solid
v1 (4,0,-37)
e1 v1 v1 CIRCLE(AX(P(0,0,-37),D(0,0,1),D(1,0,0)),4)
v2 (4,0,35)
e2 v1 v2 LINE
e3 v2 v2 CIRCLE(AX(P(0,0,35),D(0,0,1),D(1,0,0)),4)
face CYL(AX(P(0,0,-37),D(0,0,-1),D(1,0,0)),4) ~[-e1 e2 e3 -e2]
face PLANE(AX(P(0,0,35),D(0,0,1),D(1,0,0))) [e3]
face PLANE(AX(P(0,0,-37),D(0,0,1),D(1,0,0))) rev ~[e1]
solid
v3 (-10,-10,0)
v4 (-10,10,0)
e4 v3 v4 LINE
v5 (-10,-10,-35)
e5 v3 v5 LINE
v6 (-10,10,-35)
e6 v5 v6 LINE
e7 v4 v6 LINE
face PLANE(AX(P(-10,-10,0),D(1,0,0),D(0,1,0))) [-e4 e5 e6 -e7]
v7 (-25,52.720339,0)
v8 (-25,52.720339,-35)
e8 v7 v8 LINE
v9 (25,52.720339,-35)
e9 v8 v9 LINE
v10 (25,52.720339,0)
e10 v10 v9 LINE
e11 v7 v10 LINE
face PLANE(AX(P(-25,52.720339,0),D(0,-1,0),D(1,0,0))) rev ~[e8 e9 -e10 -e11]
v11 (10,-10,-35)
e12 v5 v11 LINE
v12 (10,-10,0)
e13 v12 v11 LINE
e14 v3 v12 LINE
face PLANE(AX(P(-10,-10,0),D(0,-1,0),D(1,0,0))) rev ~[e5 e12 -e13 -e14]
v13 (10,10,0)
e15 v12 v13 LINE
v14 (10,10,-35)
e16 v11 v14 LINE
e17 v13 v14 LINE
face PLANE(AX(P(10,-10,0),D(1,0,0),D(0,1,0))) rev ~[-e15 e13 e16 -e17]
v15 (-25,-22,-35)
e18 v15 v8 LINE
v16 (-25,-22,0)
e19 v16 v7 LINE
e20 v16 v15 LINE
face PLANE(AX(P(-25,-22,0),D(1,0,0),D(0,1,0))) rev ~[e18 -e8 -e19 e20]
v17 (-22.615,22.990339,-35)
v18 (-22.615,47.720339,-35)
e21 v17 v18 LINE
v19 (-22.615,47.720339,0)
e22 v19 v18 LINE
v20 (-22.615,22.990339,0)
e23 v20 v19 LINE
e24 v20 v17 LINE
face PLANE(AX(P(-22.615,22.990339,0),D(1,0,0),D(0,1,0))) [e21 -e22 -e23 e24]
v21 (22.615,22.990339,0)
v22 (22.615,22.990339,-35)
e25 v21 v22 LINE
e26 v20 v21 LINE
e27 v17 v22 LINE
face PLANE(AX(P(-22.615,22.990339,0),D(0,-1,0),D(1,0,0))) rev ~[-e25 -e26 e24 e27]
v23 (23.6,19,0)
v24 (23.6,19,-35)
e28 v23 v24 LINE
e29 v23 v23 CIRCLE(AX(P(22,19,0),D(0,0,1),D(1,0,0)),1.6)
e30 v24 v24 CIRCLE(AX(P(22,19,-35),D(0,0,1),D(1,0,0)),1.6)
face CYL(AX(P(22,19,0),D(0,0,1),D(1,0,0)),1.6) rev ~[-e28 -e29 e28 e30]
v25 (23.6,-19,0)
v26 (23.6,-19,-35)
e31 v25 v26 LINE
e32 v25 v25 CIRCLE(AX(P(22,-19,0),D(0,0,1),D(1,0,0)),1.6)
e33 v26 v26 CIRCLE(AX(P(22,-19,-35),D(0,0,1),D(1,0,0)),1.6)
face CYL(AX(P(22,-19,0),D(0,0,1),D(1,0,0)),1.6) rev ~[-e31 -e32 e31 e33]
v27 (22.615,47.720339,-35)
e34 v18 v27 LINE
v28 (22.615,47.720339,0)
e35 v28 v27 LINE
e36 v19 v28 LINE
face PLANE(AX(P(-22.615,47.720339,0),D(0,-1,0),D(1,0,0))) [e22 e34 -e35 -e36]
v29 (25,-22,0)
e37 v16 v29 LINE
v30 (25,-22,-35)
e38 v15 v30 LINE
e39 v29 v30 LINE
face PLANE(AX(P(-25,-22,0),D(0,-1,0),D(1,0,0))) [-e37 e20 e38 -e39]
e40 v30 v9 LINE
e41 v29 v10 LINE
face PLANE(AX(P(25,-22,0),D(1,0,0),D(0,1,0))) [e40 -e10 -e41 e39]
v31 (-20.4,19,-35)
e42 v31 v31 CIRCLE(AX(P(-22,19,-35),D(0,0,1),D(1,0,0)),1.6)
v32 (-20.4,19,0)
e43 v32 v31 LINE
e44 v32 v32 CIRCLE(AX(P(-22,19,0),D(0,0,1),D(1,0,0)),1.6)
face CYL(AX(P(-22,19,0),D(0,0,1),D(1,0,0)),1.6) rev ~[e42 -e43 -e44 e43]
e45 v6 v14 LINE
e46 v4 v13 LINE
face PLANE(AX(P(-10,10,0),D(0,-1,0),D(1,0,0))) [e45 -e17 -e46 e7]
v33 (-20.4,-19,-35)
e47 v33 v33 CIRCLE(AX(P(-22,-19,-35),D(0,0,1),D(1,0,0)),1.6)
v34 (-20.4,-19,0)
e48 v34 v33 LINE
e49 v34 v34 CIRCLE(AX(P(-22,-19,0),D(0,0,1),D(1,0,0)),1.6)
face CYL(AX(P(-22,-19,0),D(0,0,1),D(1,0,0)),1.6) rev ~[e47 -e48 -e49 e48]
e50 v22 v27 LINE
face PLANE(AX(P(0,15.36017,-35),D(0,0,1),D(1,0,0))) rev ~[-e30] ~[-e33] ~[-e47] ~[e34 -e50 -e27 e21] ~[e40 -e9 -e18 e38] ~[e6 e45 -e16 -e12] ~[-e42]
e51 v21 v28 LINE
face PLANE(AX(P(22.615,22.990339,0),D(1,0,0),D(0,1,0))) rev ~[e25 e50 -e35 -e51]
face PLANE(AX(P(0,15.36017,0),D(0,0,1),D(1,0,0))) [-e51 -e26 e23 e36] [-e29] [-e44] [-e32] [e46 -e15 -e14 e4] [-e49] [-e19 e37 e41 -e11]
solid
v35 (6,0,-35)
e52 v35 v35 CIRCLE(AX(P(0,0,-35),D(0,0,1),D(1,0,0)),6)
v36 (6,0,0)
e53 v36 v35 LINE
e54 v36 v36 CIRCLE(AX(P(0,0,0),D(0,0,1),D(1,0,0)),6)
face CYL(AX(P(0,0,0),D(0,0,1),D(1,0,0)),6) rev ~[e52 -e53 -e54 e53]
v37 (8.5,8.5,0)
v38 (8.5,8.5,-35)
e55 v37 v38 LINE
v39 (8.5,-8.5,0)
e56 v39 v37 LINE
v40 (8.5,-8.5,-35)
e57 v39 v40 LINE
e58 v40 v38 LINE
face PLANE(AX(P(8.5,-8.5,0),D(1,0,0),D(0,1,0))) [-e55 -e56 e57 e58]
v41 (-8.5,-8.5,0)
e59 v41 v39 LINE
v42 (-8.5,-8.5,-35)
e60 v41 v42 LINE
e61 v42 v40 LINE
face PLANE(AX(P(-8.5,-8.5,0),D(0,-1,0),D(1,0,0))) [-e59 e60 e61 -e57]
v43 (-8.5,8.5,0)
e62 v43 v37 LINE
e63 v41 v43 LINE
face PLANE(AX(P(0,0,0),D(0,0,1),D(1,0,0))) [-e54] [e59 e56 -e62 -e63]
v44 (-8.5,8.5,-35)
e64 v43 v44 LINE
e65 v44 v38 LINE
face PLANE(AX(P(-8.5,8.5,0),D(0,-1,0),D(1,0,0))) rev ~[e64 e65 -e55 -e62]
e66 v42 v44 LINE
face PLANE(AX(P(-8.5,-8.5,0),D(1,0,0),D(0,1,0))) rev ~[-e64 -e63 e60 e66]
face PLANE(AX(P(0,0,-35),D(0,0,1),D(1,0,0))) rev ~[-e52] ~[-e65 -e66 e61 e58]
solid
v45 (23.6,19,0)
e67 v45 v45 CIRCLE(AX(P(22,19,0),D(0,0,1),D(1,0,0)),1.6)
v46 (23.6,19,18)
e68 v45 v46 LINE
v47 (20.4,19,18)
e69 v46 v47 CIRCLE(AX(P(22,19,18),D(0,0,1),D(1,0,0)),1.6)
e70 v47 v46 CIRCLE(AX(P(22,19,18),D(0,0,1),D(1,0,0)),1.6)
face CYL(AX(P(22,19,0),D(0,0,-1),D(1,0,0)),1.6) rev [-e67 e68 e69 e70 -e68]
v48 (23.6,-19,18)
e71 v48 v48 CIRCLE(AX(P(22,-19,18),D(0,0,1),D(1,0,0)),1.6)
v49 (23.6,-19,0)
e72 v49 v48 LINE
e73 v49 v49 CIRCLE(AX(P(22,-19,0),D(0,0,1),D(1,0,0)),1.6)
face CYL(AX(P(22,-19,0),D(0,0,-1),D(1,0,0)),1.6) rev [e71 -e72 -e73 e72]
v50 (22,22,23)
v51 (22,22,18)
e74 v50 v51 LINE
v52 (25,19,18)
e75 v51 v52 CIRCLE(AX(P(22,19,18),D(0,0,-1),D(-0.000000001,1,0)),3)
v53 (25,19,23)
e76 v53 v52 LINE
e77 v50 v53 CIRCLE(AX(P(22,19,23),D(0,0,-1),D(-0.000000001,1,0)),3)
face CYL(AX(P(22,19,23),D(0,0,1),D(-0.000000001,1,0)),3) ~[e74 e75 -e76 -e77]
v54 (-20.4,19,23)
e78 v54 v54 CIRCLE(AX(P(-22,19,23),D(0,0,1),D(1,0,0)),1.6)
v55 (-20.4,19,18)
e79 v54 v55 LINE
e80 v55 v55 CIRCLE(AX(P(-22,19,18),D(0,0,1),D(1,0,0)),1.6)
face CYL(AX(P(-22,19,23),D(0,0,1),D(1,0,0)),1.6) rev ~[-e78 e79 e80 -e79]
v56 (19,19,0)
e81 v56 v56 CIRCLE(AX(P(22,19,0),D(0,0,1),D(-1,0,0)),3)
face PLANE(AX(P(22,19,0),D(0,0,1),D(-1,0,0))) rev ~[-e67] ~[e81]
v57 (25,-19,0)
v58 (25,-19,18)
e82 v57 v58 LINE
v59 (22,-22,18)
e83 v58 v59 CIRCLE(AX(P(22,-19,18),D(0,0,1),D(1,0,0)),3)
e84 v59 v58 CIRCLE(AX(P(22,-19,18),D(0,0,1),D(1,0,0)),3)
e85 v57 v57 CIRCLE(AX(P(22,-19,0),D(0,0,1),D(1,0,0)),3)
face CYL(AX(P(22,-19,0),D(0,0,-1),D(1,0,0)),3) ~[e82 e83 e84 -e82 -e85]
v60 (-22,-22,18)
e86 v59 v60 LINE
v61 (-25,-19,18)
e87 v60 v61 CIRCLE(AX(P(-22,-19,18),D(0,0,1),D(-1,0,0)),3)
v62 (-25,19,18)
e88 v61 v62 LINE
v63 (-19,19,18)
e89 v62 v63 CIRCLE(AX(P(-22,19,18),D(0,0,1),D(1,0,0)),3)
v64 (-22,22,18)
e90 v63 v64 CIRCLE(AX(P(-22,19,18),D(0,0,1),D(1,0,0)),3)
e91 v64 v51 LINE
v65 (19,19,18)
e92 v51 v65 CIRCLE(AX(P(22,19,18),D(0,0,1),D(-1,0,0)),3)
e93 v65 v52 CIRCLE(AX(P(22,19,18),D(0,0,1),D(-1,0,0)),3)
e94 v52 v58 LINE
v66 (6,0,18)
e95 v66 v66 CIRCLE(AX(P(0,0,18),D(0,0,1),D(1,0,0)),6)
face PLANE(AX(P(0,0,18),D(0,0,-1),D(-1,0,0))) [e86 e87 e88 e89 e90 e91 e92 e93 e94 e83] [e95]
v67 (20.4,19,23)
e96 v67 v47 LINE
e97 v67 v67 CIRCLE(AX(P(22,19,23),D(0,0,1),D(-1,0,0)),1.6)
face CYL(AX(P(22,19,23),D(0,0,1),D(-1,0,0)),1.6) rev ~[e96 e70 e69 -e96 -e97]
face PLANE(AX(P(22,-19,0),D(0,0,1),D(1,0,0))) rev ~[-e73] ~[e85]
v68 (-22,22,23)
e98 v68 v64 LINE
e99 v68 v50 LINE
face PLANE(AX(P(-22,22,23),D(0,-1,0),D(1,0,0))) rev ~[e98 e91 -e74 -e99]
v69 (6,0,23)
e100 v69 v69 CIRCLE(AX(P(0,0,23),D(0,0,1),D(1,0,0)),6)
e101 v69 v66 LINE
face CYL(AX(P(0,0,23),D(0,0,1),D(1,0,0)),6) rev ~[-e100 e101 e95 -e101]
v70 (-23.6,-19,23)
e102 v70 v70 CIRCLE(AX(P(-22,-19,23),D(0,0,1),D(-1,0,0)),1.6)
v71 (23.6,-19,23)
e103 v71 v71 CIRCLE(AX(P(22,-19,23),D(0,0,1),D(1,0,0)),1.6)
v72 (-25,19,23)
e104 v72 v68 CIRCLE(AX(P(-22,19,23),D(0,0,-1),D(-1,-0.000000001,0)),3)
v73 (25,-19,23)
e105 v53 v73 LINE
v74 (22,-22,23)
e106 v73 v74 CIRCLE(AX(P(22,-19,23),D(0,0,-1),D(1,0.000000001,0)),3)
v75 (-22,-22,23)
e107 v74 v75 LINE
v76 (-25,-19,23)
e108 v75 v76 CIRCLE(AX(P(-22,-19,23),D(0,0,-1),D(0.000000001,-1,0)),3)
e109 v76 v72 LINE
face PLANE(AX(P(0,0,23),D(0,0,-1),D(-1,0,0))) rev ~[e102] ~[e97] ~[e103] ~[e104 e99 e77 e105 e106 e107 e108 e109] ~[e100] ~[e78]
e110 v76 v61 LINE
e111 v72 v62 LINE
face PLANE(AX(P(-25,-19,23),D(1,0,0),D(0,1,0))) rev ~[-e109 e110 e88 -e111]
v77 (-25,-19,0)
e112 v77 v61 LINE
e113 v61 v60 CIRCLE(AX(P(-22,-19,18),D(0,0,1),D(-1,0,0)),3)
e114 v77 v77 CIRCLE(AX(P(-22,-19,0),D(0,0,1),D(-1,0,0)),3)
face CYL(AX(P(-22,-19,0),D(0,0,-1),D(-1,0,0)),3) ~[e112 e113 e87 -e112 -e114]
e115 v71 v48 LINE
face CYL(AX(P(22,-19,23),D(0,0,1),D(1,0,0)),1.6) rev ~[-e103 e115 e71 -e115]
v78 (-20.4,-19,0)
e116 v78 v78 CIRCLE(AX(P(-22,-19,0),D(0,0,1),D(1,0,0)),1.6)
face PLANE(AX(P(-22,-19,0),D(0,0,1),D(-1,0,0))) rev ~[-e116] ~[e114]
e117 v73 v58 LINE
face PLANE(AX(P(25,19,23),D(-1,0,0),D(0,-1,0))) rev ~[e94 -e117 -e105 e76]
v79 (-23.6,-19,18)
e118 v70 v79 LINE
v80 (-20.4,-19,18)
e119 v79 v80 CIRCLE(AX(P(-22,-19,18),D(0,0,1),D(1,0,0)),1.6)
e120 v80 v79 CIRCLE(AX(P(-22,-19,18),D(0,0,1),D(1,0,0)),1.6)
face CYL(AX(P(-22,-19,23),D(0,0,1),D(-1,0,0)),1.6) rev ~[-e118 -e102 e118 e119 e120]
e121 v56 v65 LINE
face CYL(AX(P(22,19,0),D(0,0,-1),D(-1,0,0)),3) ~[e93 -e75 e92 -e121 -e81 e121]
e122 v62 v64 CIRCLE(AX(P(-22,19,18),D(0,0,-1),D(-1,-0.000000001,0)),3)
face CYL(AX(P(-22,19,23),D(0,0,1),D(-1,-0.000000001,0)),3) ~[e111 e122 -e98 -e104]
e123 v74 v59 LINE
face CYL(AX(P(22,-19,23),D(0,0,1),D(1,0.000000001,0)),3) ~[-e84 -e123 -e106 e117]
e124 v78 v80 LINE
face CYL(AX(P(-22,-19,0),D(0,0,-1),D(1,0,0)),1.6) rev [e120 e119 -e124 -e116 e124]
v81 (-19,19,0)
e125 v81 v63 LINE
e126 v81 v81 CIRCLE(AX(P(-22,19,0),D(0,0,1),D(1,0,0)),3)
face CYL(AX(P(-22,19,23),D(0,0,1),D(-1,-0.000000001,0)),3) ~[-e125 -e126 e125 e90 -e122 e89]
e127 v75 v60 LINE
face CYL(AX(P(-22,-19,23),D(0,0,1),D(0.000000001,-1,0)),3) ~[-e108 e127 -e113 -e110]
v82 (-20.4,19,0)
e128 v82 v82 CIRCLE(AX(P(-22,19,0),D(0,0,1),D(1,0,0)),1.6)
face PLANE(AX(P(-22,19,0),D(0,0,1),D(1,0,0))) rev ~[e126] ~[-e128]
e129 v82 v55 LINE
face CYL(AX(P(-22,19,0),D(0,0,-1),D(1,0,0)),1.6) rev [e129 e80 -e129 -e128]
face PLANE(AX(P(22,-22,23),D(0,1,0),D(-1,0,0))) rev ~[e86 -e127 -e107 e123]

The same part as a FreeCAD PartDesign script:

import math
import FreeCAD as App
import Part
import Sketcher

V = App.Vector
Q = App.Units.Quantity


def add_polygon(sketch, points):
    """Adds a closed chain of lines whose ends are joined by coincident constraints."""
    first, n = sketch.GeometryCount, len(points)
    for a, b in zip(points, points[1:] + points[:1]):
        sketch.addGeometry(Part.LineSegment(App.Vector(*a, 0), App.Vector(*b, 0)), False)
    for i in range(n):
        sketch.addConstraint(Sketcher.Constraint("Coincident", first + i, 2, first + (i + 1) % n, 1))

doc = App.newDocument("Part")
body = doc.addObject("PartDesign::Body", "Body")

sketch1 = body.newObject("Sketcher::SketchObject", "Sketch")
sketch1.AttachmentSupport = (doc.getObject("XY_Plane"), [""])
sketch1.MapMode = "FlatFace"
add_polygon(sketch1, [(-25, 52.7), (-25, -22), (25, -22), (25, 52.7)])
sketch1.addGeometry(Part.Circle(V(-22, -19, 0), V(0, 0, 1), 1.6), False)
sketch1.addGeometry(Part.Circle(V(22, -19, 0), V(0, 0, 1), 1.6), False)
add_polygon(sketch1, [(10, -10), (-10, -10), (-10, 10), (10, 10)])
sketch1.addGeometry(Part.Circle(V(-22, 19, 0), V(0, 0, 1), 1.6), False)
sketch1.addGeometry(Part.Circle(V(22, 19, 0), V(0, 0, 1), 1.6), False)
add_polygon(sketch1, [(22.6, 23), (-22.6, 23), (-22.6, 47.7), (22.6, 47.7)])
sketch1.addConstraint(Sketcher.Constraint("Vertical", 0))
sketch1.addConstraint(Sketcher.Constraint("Horizontal", 1))
sketch1.addConstraint(Sketcher.Constraint("Vertical", 2))
sketch1.addConstraint(Sketcher.Constraint("Horizontal", 3))
sketch1.addConstraint(Sketcher.Constraint("Horizontal", 6))
sketch1.addConstraint(Sketcher.Constraint("Vertical", 7))
sketch1.addConstraint(Sketcher.Constraint("Horizontal", 8))
sketch1.addConstraint(Sketcher.Constraint("Vertical", 9))
sketch1.addConstraint(Sketcher.Constraint("Horizontal", 12))
sketch1.addConstraint(Sketcher.Constraint("Vertical", 13))
sketch1.addConstraint(Sketcher.Constraint("Horizontal", 14))
sketch1.addConstraint(Sketcher.Constraint("Vertical", 15))
sketch1.addConstraint(Sketcher.Constraint("Equal", 4, 5))
sketch1.addConstraint(Sketcher.Constraint("Equal", 5, 10))
sketch1.addConstraint(Sketcher.Constraint("Equal", 10, 11))
sketch1.addConstraint(Sketcher.Constraint("Symmetric", 5, 3, 10, 3, -1, 1))
sketch1.addConstraint(Sketcher.Constraint("Symmetric", 4, 3, 11, 3, -1, 1))
sketch1.addConstraint(Sketcher.Constraint("Symmetric", 6, 2, 8, 2, -1, 1))
sketch1.addConstraint(Sketcher.Constraint("Symmetric", 4, 3, 5, 3, -2))
sketch1.addConstraint(Sketcher.Constraint("Equal", 8, 7))
sketch1.addConstraint(Sketcher.Constraint("Diameter", 4, Q("3.2 mm")))
sketch1.addConstraint(Sketcher.Constraint("DistanceX", 1, 1, 1, 2, Q("50 mm")))
sketch1.addConstraint(Sketcher.Constraint("DistanceX", 6, 2, 6, 1, Q("20 mm")))
sketch1.addConstraint(Sketcher.Constraint("DistanceX", 4, 3, -1, 1, Q("22 mm")))
sketch1.addConstraint(Sketcher.Constraint("DistanceY", 4, 3, -1, 1, Q("19 mm")))
sketch1.addConstraint(Sketcher.Constraint("DistanceX", 0, 2, -1, 1, Q("25 mm")))
sketch1.addConstraint(Sketcher.Constraint("DistanceY", 0, 2, -1, 1, Q("22 mm")))
sketch1.addConstraint(Sketcher.Constraint("DistanceY", 13, 2, 3, 2, Q("5 mm")))
sketch1.addConstraint(Sketcher.Constraint("DistanceX", 12, 2, 12, 1, Q("45.23 mm")))
sketch1.addConstraint(Sketcher.Constraint("DistanceY", 13, 1, 13, 2, Q("24.73 mm")))
sketch1.addConstraint(Sketcher.Constraint("DistanceX", 12, 2, -1, 1, Q("22.615 mm")))
sketch1.addConstraint(Sketcher.Constraint("DistanceY", 0, 2, 0, 1, Q("74.720339 mm")))
pad1 = body.newObject("PartDesign::Pad", "Pad")
pad1.Profile = sketch1
pad1.Length = 35
pad1.Reversed = True
body2 = doc.addObject("PartDesign::Body", "Body001")

sketch2 = body2.newObject("Sketcher::SketchObject", "Sketch001")
sketch2.AttachmentSupport = (doc.getObject("XY_Plane001"), [""])
sketch2.MapMode = "FlatFace"
add_polygon(sketch2, [(-8, 8), (-8, -8), (8, -8), (8, 8)])
sketch2.addGeometry(Part.Circle(V(0, 0, 0), V(0, 0, 1), 6), False)
sketch2.addConstraint(Sketcher.Constraint("Vertical", 0))
sketch2.addConstraint(Sketcher.Constraint("Horizontal", 1))
sketch2.addConstraint(Sketcher.Constraint("Vertical", 2))
sketch2.addConstraint(Sketcher.Constraint("Horizontal", 3))
sketch2.addConstraint(Sketcher.Constraint("Coincident", 4, 3, -1, 1))
sketch2.addConstraint(Sketcher.Constraint("Symmetric", 0, 2, 2, 2, -1, 1))
sketch2.addConstraint(Sketcher.Constraint("Equal", 3, 0))
sketch2.addConstraint(Sketcher.Constraint("Diameter", 4, Q("12 mm")))
sketch2.addConstraint(Sketcher.Constraint("DistanceX", 1, 1, 1, 2, Q("17 mm")))
pad2 = body2.newObject("PartDesign::Pad", "Pad001")
pad2.Profile = sketch2
pad2.Length = 35
pad2.Reversed = True
body3 = doc.addObject("PartDesign::Body", "Body002")

sketch3 = body3.newObject("Sketcher::SketchObject", "Sketch002")
sketch3.AttachmentSupport = (doc.getObject("XY_Plane002"), [""])
sketch3.MapMode = "FlatFace"
sketch3.addGeometry(Part.Circle(V(0, 0, 0), V(0, 0, 1), 4), False)
sketch3.addConstraint(Sketcher.Constraint("Coincident", 0, 3, -1, 1))
sketch3.addConstraint(Sketcher.Constraint("Diameter", 0, Q("8 mm")))
pad3 = body3.newObject("PartDesign::Pad", "Pad002")
pad3.Profile = sketch3
pad3.Type = "TwoLengths"
pad3.Length = 35
pad3.Length2 = 37
body4 = doc.addObject("PartDesign::Body", "Body003")

sketch4 = body4.newObject("Sketcher::SketchObject", "Sketch003")
sketch4.AttachmentSupport = (doc.getObject("XY_Plane003"), [""])
sketch4.MapMode = "FlatFace"
sketch4.addGeometry(Part.Circle(V(-22, 19, 0), V(0, 0, 1), 3), False)
sketch4.addGeometry(Part.Circle(V(-22, 19, 0), V(0, 0, 1), 1.6), False)
sketch4.addConstraint(Sketcher.Constraint("Coincident", 1, 3, 0, 3))
sketch4.addConstraint(Sketcher.Constraint("Diameter", 0, Q("6 mm")))
sketch4.addConstraint(Sketcher.Constraint("Diameter", 1, Q("3.2 mm")))
sketch4.addConstraint(Sketcher.Constraint("DistanceX", 0, 3, -1, 1, Q("22 mm")))
sketch4.addConstraint(Sketcher.Constraint("DistanceY", -1, 1, 0, 3, Q("19 mm")))
pad4 = body4.newObject("PartDesign::Pad", "Pad003")
pad4.Profile = sketch4
pad4.Length = 18
body5 = doc.addObject("PartDesign::Body", "Body004")

sketch5 = body5.newObject("Sketcher::SketchObject", "Sketch004")
sketch5.AttachmentSupport = (doc.getObject("XY_Plane004"), [""])
sketch5.MapMode = "FlatFace"
sketch5.addGeometry(Part.Circle(V(-22, -19, 0), V(0, 0, 1), 3), False)
sketch5.addGeometry(Part.Circle(V(-22, -19, 0), V(0, 0, 1), 1.6), False)
sketch5.addConstraint(Sketcher.Constraint("Coincident", 1, 3, 0, 3))
sketch5.addConstraint(Sketcher.Constraint("Diameter", 0, Q("6 mm")))
sketch5.addConstraint(Sketcher.Constraint("Diameter", 1, Q("3.2 mm")))
sketch5.addConstraint(Sketcher.Constraint("DistanceX", 0, 3, -1, 1, Q("22 mm")))
sketch5.addConstraint(Sketcher.Constraint("DistanceY", 0, 3, -1, 1, Q("19 mm")))
pad5 = body5.newObject("PartDesign::Pad", "Pad004")
pad5.Profile = sketch5
pad5.Length = 18
body6 = doc.addObject("PartDesign::Body", "Body005")

sketch6 = body6.newObject("Sketcher::SketchObject", "Sketch005")
sketch6.AttachmentSupport = (doc.getObject("XY_Plane005"), [""])
sketch6.MapMode = "FlatFace"
sketch6.addGeometry(Part.Circle(V(22, -19, 0), V(0, 0, 1), 3), False)
sketch6.addGeometry(Part.Circle(V(22, -19, 0), V(0, 0, 1), 1.6), False)
sketch6.addConstraint(Sketcher.Constraint("Coincident", 1, 3, 0, 3))
sketch6.addConstraint(Sketcher.Constraint("Diameter", 0, Q("6 mm")))
sketch6.addConstraint(Sketcher.Constraint("Diameter", 1, Q("3.2 mm")))
sketch6.addConstraint(Sketcher.Constraint("DistanceX", -1, 1, 0, 3, Q("22 mm")))
sketch6.addConstraint(Sketcher.Constraint("DistanceY", 0, 3, -1, 1, Q("19 mm")))
pad6 = body6.newObject("PartDesign::Pad", "Pad005")
pad6.Profile = sketch6
pad6.Length = 18
body7 = doc.addObject("PartDesign::Body", "Body006")

sketch7 = body7.newObject("Sketcher::SketchObject", "Sketch006")
sketch7.AttachmentSupport = (doc.getObject("XY_Plane006"), [""])
sketch7.MapMode = "FlatFace"
sketch7.addGeometry(Part.Circle(V(22, 19, 0), V(0, 0, 1), 3), False)
sketch7.addGeometry(Part.Circle(V(22, 19, 0), V(0, 0, 1), 1.6), False)
sketch7.addConstraint(Sketcher.Constraint("Coincident", 1, 3, 0, 3))
sketch7.addConstraint(Sketcher.Constraint("Diameter", 0, Q("6 mm")))
sketch7.addConstraint(Sketcher.Constraint("Diameter", 1, Q("3.2 mm")))
sketch7.addConstraint(Sketcher.Constraint("DistanceX", -1, 1, 0, 3, Q("22 mm")))
sketch7.addConstraint(Sketcher.Constraint("DistanceY", -1, 1, 0, 3, Q("19 mm")))
pad7 = body7.newObject("PartDesign::Pad", "Pad006")
pad7.Profile = sketch7
pad7.Length = 18
body4.AllowCompound = True
doc.recompute()

boolean = body4.newObject("PartDesign::Boolean", "Boolean")
boolean.Type = "Fuse"
boolean.addObjects([body5])
doc.recompute()

boolean2 = body4.newObject("PartDesign::Boolean", "Boolean001")
boolean2.Type = "Fuse"
boolean2.addObjects([body6])
doc.recompute()

boolean3 = body4.newObject("PartDesign::Boolean", "Boolean002")
boolean3.Type = "Fuse"
boolean3.addObjects([body7])

sketch8 = body4.newObject("Sketcher::SketchObject", "Sketch007")
sketch8.AttachmentSupport = (doc.getObject("XY_Plane003"), [""])
sketch8.MapMode = "FlatFace"
sketch8.AttachmentOffset = App.Placement(V(0, 0, 23), App.Rotation())
sketch8.addGeometry(Part.LineSegment(V(22, 22, 0), V(-22, 22, 0)), False)
sketch8.addGeometry(Part.ArcOfCircle(Part.Circle(V(-22, 19, 0), V(0, 0, 1), 3), math.radians(90), math.radians(180)), False)
sketch8.addGeometry(Part.LineSegment(V(-25, 19, 0), V(-25, -19, 0)), False)
sketch8.addGeometry(Part.ArcOfCircle(Part.Circle(V(-22, -19, 0), V(0, 0, 1), 3), math.radians(180), math.radians(270)), False)
sketch8.addGeometry(Part.LineSegment(V(-22, -22, 0), V(22, -22, 0)), False)
sketch8.addGeometry(Part.ArcOfCircle(Part.Circle(V(22, -19, 0), V(0, 0, 1), 3), math.radians(-90), math.radians(0)), False)
sketch8.addGeometry(Part.LineSegment(V(25, -19, 0), V(25, 19, 0)), False)
sketch8.addGeometry(Part.ArcOfCircle(Part.Circle(V(22, 19, 0), V(0, 0, 1), 3), math.radians(0), math.radians(90)), False)
sketch8.addGeometry(Part.Circle(V(22, -19, 0), V(0, 0, 1), 1.6), False)
sketch8.addGeometry(Part.Circle(V(-22, -19, 0), V(0, 0, 1), 1.6), False)
sketch8.addGeometry(Part.Circle(V(22, 19, 0), V(0, 0, 1), 1.6), False)
sketch8.addGeometry(Part.Circle(V(0, 0, 0), V(0, 0, 1), 6), False)
sketch8.addGeometry(Part.Circle(V(-22, 19, 0), V(0, 0, 1), 1.6), False)
sketch8.addConstraint(Sketcher.Constraint("Tangent", 0, 2, 1, 1))
sketch8.addConstraint(Sketcher.Constraint("Tangent", 1, 2, 2, 1))
sketch8.addConstraint(Sketcher.Constraint("Tangent", 2, 2, 3, 1))
sketch8.addConstraint(Sketcher.Constraint("Tangent", 3, 2, 4, 1))
sketch8.addConstraint(Sketcher.Constraint("Tangent", 4, 2, 5, 1))
sketch8.addConstraint(Sketcher.Constraint("Tangent", 5, 2, 6, 1))
sketch8.addConstraint(Sketcher.Constraint("Tangent", 6, 2, 7, 1))
sketch8.addConstraint(Sketcher.Constraint("Tangent", 7, 2, 0, 1))
sketch8.addConstraint(Sketcher.Constraint("Horizontal", 0))
sketch8.addConstraint(Sketcher.Constraint("Vertical", 2))
sketch8.addConstraint(Sketcher.Constraint("Horizontal", 4))
sketch8.addConstraint(Sketcher.Constraint("Vertical", 6))
sketch8.addConstraint(Sketcher.Constraint("Coincident", 11, 3, -1, 1))
sketch8.addConstraint(Sketcher.Constraint("Coincident", 8, 3, 5, 3))
sketch8.addConstraint(Sketcher.Constraint("Coincident", 9, 3, 3, 3))
sketch8.addConstraint(Sketcher.Constraint("Coincident", 10, 3, 7, 3))
sketch8.addConstraint(Sketcher.Constraint("Coincident", 12, 3, 1, 3))
sketch8.addConstraint(Sketcher.Constraint("Equal", 1, 3))
sketch8.addConstraint(Sketcher.Constraint("Equal", 3, 5))
sketch8.addConstraint(Sketcher.Constraint("Equal", 5, 7))
sketch8.addConstraint(Sketcher.Constraint("Equal", 8, 9))
sketch8.addConstraint(Sketcher.Constraint("Equal", 9, 10))
sketch8.addConstraint(Sketcher.Constraint("Equal", 10, 12))
sketch8.addConstraint(Sketcher.Constraint("Symmetric", 1, 3, 5, 3, -1, 1))
sketch8.addConstraint(Sketcher.Constraint("Diameter", 11, Q("12 mm")))
sketch8.addConstraint(Sketcher.Constraint("Radius", 1, Q("3 mm")))
sketch8.addConstraint(Sketcher.Constraint("Diameter", 8, Q("3.2 mm")))
sketch8.addConstraint(Sketcher.Constraint("DistanceX", 0, 2, 0, 1, Q("44 mm")))
sketch8.addConstraint(Sketcher.Constraint("DistanceY", 2, 2, 2, 1, Q("38 mm")))
pad8 = body4.newObject("PartDesign::Pad", "Pad007")
pad8.Profile = sketch8
pad8.Length = 5
pad8.Reversed = True

doc.recompute()
